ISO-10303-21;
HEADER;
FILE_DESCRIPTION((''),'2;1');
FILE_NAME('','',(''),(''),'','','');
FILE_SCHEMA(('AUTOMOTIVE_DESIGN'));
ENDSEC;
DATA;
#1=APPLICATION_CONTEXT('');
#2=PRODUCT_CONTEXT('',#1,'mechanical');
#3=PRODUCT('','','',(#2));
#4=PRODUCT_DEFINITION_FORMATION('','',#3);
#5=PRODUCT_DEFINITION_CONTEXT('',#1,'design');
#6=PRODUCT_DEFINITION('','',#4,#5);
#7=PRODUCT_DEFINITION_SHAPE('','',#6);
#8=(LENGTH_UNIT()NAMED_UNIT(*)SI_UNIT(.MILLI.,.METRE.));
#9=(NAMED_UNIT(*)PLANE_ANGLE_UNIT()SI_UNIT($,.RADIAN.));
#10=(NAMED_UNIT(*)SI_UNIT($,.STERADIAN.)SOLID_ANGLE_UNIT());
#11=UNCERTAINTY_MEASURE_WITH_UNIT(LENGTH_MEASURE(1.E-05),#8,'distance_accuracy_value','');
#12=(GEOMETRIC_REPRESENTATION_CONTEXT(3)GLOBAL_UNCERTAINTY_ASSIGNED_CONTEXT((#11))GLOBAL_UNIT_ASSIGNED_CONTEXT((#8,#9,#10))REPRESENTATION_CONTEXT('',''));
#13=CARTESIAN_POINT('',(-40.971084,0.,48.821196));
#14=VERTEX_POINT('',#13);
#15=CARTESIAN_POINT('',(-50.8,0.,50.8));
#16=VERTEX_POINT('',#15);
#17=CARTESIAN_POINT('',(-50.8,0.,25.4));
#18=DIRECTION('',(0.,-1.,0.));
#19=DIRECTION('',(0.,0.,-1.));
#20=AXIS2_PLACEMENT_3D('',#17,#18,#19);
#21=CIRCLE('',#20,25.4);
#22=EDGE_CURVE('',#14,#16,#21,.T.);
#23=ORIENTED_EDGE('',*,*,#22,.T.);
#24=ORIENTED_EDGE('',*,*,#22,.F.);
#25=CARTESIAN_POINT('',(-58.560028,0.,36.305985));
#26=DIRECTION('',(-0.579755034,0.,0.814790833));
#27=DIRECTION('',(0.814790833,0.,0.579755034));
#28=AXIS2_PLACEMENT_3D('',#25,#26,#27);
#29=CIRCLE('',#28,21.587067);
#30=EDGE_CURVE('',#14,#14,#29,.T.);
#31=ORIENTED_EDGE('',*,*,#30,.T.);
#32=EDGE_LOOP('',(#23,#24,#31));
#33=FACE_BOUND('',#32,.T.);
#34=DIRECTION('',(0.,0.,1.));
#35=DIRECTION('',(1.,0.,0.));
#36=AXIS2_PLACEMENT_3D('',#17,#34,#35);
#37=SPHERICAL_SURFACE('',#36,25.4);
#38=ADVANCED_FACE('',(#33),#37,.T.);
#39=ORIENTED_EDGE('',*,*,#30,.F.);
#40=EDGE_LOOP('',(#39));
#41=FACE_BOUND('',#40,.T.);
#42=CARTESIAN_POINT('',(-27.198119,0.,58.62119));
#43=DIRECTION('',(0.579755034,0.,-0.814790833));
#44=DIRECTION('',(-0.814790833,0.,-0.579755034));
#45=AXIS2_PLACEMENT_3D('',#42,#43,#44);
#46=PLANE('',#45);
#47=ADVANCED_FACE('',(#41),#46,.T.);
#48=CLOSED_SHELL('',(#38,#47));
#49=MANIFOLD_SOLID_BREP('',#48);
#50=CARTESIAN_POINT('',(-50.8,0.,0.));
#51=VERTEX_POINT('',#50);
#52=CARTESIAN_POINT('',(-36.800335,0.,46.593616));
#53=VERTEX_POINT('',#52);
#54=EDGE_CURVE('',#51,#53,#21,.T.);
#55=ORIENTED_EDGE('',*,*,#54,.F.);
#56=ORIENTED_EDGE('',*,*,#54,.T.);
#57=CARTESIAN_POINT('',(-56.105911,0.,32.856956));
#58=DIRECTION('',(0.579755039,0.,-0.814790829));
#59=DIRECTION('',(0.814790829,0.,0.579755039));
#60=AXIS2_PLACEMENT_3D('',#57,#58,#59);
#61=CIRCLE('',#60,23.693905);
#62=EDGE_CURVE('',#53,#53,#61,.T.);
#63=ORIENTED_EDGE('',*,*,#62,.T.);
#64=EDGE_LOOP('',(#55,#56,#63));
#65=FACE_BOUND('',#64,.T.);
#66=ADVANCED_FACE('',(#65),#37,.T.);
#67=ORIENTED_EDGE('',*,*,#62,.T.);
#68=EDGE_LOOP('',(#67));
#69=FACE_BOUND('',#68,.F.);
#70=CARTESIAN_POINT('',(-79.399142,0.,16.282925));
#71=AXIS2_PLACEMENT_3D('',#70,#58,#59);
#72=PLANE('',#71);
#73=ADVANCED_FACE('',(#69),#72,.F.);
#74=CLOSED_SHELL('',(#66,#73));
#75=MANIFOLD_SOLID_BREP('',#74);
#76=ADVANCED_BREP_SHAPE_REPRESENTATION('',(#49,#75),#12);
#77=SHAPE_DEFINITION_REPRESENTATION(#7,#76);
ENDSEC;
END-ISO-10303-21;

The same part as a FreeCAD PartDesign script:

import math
import FreeCAD as App
import Part
import Sketcher
Q = App.Units.Quantity

doc = App.newDocument("Part")
body = doc.addObject("PartDesign::Body", "Body")
body.AllowCompound = True

# Sketch on XZ plane
sketch1 = body.newObject("Sketcher::SketchObject", "Sketch")
sketch1.AttachmentSupport = (doc.getObject("XZ_Plane"), [""])
sketch1.MapMode = "FlatFace"
sketch1.addGeometry([
    Part.LineSegment(App.Vector(-50.8, 50.8, 0), App.Vector(-50.8, 0, 0)),
    Part.ArcOfCircle(Part.Circle(App.Vector(-50.8, 25.4, 0), App.Vector(0, 0, 1), 25.4), math.radians(-90), math.radians(90)),
], False)
sketch1.addGeometry(Part.LineSegment(App.Vector(-50.8, 0, 0), App.Vector(-50.8, 50.8, 0)), True)  # axis
sketch1.addConstraint([
    Sketcher.Constraint("Coincident", 0, 1, 1, 2),
    Sketcher.Constraint("Coincident", 1, 1, 0, 2),
    Sketcher.Constraint("Vertical", 0),
    Sketcher.Constraint("Vertical", 2),
    Sketcher.Constraint("Coincident", 2, 1, 1, 1),
    Sketcher.Constraint("PointOnObject", 1, 1, -1),
    Sketcher.Constraint("Vertical", 1, 3, 0, 1),
    Sketcher.Constraint("Equal", 0, 2),
    Sketcher.Constraint("Radius", 1, Q("1 in")),
    Sketcher.Constraint("DistanceX", 1, 3, -1, 1, Q("2 in")),
])
revolution = body.newObject("PartDesign::Revolution", "Revolution")
revolution.Profile = sketch1
revolution.ReferenceAxis = (sketch1, ["Axis0"])
revolution.Angle = 360

# Sketch on XZ plane
sketch2 = body.newObject("Sketcher::SketchObject", "Sketch001")
sketch2.AttachmentSupport = (doc.getObject("XZ_Plane"), [""])
sketch2.MapMode = "FlatFace"
sketch2.addGeometry([
    Part.LineSegment(App.Vector(-27.198119, 58.62119, 0), App.Vector(-82.122475, 19.540397, 0)),
    Part.LineSegment(App.Vector(-82.122475, 19.540397, 0), App.Vector(-79.399142, 16.282925, 0)),
    Part.LineSegment(App.Vector(-79.399142, 16.282925, 0), App.Vector(-24.744002, 55.172161, 0)),
    Part.LineSegment(App.Vector(-24.744002, 55.172161, 0), App.Vector(-27.198119, 58.62119, 0)),
], False)
sketch2.addConstraint([
    Sketcher.Constraint("Coincident", 0, 2, 1, 1),
    Sketcher.Constraint("Coincident", 1, 2, 2, 1),
    Sketcher.Constraint("Coincident", 2, 2, 3, 1),
    Sketcher.Constraint("Coincident", 3, 2, 0, 1),
    Sketcher.Constraint("Parallel", 0, 2),
    Sketcher.Constraint("Perpendicular", 2, 3),
    Sketcher.Constraint("Distance", 1, 4.2459),
    Sketcher.Constraint("DistanceX", 2, 2, -1, 1, 24.744002),
    Sketcher.Constraint("Distance", 0, 67.409148),
    Sketcher.Constraint("DistanceX", 1, 2, -1, 1, 79.399142),
    Sketcher.Constraint("DistanceY", -1, 1, 2, 2, 55.172161),
    Sketcher.Constraint("DistanceX", 3, 2, -1, 1, 27.198119),
])
pocket1 = body.newObject("PartDesign::Pocket", "Pocket")
pocket1.Profile = sketch2
pocket1.Type = "ThroughAll"
pocket1.Midplane = True

doc.recompute()
